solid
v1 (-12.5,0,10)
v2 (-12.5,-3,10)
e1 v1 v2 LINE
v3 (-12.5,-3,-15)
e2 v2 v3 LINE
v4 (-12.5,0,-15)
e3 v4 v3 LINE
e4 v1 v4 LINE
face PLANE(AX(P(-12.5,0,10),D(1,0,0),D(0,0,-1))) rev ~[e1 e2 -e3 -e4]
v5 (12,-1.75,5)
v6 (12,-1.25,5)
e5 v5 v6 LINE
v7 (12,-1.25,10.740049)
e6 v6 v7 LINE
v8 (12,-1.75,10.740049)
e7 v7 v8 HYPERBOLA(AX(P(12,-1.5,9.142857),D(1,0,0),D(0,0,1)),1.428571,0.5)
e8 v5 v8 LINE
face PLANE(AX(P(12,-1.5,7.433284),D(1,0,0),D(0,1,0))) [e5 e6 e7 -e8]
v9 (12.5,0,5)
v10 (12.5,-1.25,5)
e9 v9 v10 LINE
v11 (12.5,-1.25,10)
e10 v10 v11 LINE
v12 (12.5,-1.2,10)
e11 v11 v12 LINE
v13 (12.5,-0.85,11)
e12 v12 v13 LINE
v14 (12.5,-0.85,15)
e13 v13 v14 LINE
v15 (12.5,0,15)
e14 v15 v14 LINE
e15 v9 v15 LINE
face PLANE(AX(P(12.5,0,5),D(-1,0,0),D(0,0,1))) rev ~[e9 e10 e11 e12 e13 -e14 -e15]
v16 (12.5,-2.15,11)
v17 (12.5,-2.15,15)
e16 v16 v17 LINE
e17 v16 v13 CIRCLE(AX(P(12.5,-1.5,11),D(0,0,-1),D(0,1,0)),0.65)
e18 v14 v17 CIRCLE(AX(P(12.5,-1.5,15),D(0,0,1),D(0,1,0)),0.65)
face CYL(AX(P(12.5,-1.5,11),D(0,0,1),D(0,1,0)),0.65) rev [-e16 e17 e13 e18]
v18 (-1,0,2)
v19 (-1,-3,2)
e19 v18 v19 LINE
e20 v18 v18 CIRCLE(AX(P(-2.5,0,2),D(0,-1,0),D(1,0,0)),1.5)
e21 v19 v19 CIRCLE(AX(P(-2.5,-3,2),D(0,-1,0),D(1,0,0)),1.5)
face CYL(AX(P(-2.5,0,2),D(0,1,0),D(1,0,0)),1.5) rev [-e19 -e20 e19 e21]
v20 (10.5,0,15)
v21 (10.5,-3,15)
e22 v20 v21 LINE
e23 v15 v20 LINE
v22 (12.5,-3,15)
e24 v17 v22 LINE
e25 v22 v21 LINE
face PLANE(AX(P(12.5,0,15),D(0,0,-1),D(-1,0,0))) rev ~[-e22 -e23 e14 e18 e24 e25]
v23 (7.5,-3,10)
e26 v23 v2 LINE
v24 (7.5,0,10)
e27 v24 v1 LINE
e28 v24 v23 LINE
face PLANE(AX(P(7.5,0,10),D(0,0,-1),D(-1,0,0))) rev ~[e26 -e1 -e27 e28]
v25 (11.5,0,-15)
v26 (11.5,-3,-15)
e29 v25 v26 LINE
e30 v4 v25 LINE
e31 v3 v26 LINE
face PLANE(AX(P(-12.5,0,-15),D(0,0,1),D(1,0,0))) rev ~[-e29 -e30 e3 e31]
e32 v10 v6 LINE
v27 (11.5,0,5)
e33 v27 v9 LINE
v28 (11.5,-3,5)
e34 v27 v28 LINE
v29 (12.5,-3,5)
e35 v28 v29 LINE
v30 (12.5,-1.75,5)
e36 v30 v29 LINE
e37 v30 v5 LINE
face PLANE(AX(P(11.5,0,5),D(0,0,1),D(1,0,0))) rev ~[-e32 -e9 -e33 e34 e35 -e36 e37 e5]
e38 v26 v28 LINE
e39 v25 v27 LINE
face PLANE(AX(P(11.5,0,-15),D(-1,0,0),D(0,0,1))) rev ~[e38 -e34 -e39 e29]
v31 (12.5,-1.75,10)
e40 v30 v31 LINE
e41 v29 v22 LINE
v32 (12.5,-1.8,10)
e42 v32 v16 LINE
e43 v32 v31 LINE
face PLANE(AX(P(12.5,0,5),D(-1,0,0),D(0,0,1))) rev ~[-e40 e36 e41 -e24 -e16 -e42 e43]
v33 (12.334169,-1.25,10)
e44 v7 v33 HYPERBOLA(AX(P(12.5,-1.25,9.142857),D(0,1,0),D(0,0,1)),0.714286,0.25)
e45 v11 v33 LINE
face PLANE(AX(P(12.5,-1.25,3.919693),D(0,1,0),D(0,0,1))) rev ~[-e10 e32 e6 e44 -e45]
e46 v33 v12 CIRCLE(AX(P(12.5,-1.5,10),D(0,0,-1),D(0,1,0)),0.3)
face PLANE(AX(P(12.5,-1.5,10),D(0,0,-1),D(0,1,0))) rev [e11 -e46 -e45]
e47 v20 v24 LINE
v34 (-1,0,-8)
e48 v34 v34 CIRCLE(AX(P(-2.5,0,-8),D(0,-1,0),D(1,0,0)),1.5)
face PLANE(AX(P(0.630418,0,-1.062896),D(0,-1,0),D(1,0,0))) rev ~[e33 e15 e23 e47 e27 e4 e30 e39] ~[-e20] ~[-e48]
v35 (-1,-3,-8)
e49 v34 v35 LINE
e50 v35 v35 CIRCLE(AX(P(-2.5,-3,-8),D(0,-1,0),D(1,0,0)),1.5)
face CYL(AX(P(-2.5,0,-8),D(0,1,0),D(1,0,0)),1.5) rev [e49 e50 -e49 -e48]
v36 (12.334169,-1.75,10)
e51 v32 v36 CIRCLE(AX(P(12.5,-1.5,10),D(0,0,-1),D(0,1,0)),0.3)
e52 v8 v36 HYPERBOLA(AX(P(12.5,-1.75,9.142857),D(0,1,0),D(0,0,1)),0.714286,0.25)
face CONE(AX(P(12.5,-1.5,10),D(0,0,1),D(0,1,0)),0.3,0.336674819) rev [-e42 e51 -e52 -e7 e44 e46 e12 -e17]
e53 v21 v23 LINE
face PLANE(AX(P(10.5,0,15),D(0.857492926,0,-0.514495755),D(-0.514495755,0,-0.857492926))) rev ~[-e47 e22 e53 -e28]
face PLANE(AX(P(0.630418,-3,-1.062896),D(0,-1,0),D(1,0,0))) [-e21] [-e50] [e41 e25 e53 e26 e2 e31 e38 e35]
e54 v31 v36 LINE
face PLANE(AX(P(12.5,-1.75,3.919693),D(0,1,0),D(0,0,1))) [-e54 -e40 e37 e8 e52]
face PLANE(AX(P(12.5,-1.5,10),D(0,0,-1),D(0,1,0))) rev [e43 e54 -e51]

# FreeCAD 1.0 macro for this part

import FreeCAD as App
import Part
import Sketcher
from FreeCAD import Vector


def add_polygon(sketch, points):
    """Adds a closed chain of lines whose ends are joined by coincident constraints."""
    first, n = sketch.GeometryCount, len(points)
    for a, b in zip(points, points[1:] + points[:1]):
        sketch.addGeometry(Part.LineSegment(App.Vector(*a, 0), App.Vector(*b, 0)), False)
    for i in range(n):
        sketch.addConstraint(Sketcher.Constraint("Coincident", first + i, 2, first + (i + 1) % n, 1))

doc = App.newDocument("Part")
params = doc.addObject("Spreadsheet::Sheet", "Params")
for row, (alias, value) in enumerate([
    ("sketch1_diameter", "3 mm"),
    ("sketch1_width", "2 mm"),
    ("sketch1_width2", "20 mm"),
    ("sketch1_width3", "24 mm"),
    ("sketch1_width4", "1 mm"),
    ("pad1_length", "3 mm"),
    ("sketch2_width", "0.3 mm"),
    ("sketch2_width2", "0.65 mm"),
    ("groove_angle", "360 deg"),
    ("sketch3_width", "0.5 mm"),
    ("pocket1_length", "0.5 mm"),
], start=1):
    params.set(f"A{row}", alias)
    params.set(f"B{row}", "=" + value)
    params.setAlias(f"B{row}", alias)

body = doc.addObject("PartDesign::Body", "Body")

# Sketch on XZ plane
sketch1 = doc.addObject("Sketcher::SketchObject", "Sketch")
body.addObject(sketch1)
sketch1.AttachmentSupport = (doc.XZ_Plane, [""])
sketch1.MapMode = "FlatFace"
add_polygon(sketch1, [(12.5, 5), (12.5, 15), (10.5, 15), (7.5, 10), (-12.5, 10), (-12.5, -15), (11.5, -15), (11.5, 5)])  # lines 0-7
sketch1.addGeometry(Part.Circle(Vector(-2.5, -8, 0), Vector(0, 0, 1), 1.5), False)  # 8
sketch1.addGeometry(Part.Circle(Vector(-2.5, 2, 0), Vector(0, 0, 1), 1.5), False)  # 9
sketch1.addConstraint(Sketcher.Constraint("Vertical", 0))
sketch1.addConstraint(Sketcher.Constraint("Horizontal", 1))
sketch1.addConstraint(Sketcher.Constraint("Horizontal", 3))
sketch1.addConstraint(Sketcher.Constraint("Vertical", 4))
sketch1.addConstraint(Sketcher.Constraint("Horizontal", 5))
sketch1.addConstraint(Sketcher.Constraint("Vertical", 6))
sketch1.addConstraint(Sketcher.Constraint("Horizontal", 7))
sketch1.addConstraint(Sketcher.Constraint("Equal", 8, 9))
sketch1.addConstraint(Sketcher.Constraint("Symmetric", 0, 2, 4, 2, -1, 1))
sketch1.addConstraint(Sketcher.Constraint("Vertical", 8, 3, 9, 3))
sketch1.addConstraint(Sketcher.Constraint("Equal", 3, 6))
sketch1.addConstraint(Sketcher.Constraint("Diameter", 8, 3.0))
sketch1.addConstraint(Sketcher.Constraint("DistanceX", 1, 2, 1, 1, 2.0))
sketch1.addConstraint(Sketcher.Constraint("DistanceX", 3, 2, 3, 1, 20.0))
sketch1.addConstraint(Sketcher.Constraint("DistanceX", 5, 1, 5, 2, 24.0))
sketch1.addConstraint(Sketcher.Constraint("DistanceX", 7, 1, 7, 2, 1.0))
sketch1.addConstraint(Sketcher.Constraint("DistanceY", 0, 1, 0, 2, 10.0))
sketch1.addConstraint(Sketcher.Constraint("DistanceY", 4, 2, 4, 1, 25.0))
sketch1.addConstraint(Sketcher.Constraint("DistanceY", 8, 3, -1, 1, 8.0))
sketch1.addConstraint(Sketcher.Constraint("DistanceY", -1, 1, 9, 3, 2.0))
sketch1.addConstraint(Sketcher.Constraint("DistanceX", 9, 3, 0, 2, 15.0))
sketch1.setExpression("Constraints[19]", "Params.sketch1_diameter")
sketch1.setExpression("Constraints[20]", "Params.sketch1_width")
sketch1.setExpression("Constraints[21]", "Params.sketch1_width2")
sketch1.setExpression("Constraints[22]", "Params.sketch1_width3")
sketch1.setExpression("Constraints[23]", "Params.sketch1_width4")
pad1 = doc.addObject("PartDesign::Pad", "Pad")
body.addObject(pad1)
pad1.Profile = sketch1
pad1.setExpression("Length", "Params.pad1_length")

# Sketch on YZ plane
sketch2 = doc.addObject("Sketcher::SketchObject", "Sketch001")
body.addObject(sketch2)
sketch2.AttachmentSupport = (doc.YZ_Plane, [""])
sketch2.MapMode = "FlatFace"
sketch2.AttachmentOffset = App.Placement(Vector(0, 0, 12.5), App.Rotation())
add_polygon(sketch2, [(-0.85, 15.88), (-1.5, 15.88), (-1.5, 10), (-1.2, 10), (-0.85, 11)])  # lines 0-4
sketch2.addGeometry(Part.LineSegment(Vector(-1.5, 15.88, 0), Vector(-1.5, 10, 0)), True)  # axis
sketch2.addConstraint(Sketcher.Constraint("Horizontal", 0))
sketch2.addConstraint(Sketcher.Constraint("Vertical", 1))
sketch2.addConstraint(Sketcher.Constraint("Horizontal", 2))
sketch2.addConstraint(Sketcher.Constraint("Vertical", 4))
sketch2.addConstraint(Sketcher.Constraint("Vertical", 5))
sketch2.addConstraint(Sketcher.Constraint("Coincident", 5, 1, 0, 2))
sketch2.addConstraint(Sketcher.Constraint("Horizontal", 2, 2, 5, 2))
sketch2.addConstraint(Sketcher.Constraint("DistanceX", 2, 1, 2, 2, 0.3))
sketch2.addConstraint(Sketcher.Constraint("DistanceY", -1, 1, 1, 2, 10.0))
sketch2.addConstraint(Sketcher.Constraint("DistanceY", -1, 1, 3, 2, 11.0))
sketch2.addConstraint(Sketcher.Constraint("DistanceX", 0, 2, 0, 1, 0.65))
sketch2.addConstraint(Sketcher.Constraint("DistanceX", 0, 2, -1, 1, 1.5))
sketch2.addConstraint(Sketcher.Constraint("DistanceY", 1, 2, 1, 1, 5.881686))
sketch2.setExpression("Constraints[12]", "Params.sketch2_width")
sketch2.setExpression("Constraints[15]", "Params.sketch2_width2")
groove = doc.addObject("PartDesign::Groove", "Groove")
body.addObject(groove)
groove.Profile = sketch2
groove.ReferenceAxis = (sketch2, ["Axis0"])
groove.setExpression("Angle", "Params.groove_angle")

# Sketch on YZ plane
sketch3 = doc.addObject("Sketcher::SketchObject", "Sketch002")
body.addObject(sketch3)
sketch3.AttachmentSupport = (doc.YZ_Plane, [""])
sketch3.MapMode = "FlatFace"
sketch3.AttachmentOffset = App.Placement(Vector(0, 0, 12.5), App.Rotation())
add_polygon(sketch3, [(-1.8, 10.9), (-1.8, 3.9), (-1.2, 3.9), (-1.2, 10.9)])  # lines 0-3
sketch3.addConstraint(Sketcher.Constraint("Vertical", 0))
sketch3.addConstraint(Sketcher.Constraint("Horizontal", 1))
sketch3.addConstraint(Sketcher.Constraint("Vertical", 2))
sketch3.addConstraint(Sketcher.Constraint("Horizontal", 3))
sketch3.addConstraint(Sketcher.Constraint("DistanceX", 1, 1, 1, 2, 0.5))
sketch3.addConstraint(Sketcher.Constraint("DistanceX", 0, 2, -1, 1, 1.75))
sketch3.addConstraint(Sketcher.Constraint("DistanceY", 0, 2, 0, 1, 7.027182))
sketch3.addConstraint(Sketcher.Constraint("DistanceY", -1, 1, 0, 2, 3.919693))
sketch3.setExpression("Constraints[8]", "Params.sketch3_width")
pocket1 = doc.addObject("PartDesign::Pocket", "Pocket")
body.addObject(pocket1)
pocket1.Profile = sketch3
pocket1.setExpression("Length", "Params.pocket1_length")

doc.recompute()
